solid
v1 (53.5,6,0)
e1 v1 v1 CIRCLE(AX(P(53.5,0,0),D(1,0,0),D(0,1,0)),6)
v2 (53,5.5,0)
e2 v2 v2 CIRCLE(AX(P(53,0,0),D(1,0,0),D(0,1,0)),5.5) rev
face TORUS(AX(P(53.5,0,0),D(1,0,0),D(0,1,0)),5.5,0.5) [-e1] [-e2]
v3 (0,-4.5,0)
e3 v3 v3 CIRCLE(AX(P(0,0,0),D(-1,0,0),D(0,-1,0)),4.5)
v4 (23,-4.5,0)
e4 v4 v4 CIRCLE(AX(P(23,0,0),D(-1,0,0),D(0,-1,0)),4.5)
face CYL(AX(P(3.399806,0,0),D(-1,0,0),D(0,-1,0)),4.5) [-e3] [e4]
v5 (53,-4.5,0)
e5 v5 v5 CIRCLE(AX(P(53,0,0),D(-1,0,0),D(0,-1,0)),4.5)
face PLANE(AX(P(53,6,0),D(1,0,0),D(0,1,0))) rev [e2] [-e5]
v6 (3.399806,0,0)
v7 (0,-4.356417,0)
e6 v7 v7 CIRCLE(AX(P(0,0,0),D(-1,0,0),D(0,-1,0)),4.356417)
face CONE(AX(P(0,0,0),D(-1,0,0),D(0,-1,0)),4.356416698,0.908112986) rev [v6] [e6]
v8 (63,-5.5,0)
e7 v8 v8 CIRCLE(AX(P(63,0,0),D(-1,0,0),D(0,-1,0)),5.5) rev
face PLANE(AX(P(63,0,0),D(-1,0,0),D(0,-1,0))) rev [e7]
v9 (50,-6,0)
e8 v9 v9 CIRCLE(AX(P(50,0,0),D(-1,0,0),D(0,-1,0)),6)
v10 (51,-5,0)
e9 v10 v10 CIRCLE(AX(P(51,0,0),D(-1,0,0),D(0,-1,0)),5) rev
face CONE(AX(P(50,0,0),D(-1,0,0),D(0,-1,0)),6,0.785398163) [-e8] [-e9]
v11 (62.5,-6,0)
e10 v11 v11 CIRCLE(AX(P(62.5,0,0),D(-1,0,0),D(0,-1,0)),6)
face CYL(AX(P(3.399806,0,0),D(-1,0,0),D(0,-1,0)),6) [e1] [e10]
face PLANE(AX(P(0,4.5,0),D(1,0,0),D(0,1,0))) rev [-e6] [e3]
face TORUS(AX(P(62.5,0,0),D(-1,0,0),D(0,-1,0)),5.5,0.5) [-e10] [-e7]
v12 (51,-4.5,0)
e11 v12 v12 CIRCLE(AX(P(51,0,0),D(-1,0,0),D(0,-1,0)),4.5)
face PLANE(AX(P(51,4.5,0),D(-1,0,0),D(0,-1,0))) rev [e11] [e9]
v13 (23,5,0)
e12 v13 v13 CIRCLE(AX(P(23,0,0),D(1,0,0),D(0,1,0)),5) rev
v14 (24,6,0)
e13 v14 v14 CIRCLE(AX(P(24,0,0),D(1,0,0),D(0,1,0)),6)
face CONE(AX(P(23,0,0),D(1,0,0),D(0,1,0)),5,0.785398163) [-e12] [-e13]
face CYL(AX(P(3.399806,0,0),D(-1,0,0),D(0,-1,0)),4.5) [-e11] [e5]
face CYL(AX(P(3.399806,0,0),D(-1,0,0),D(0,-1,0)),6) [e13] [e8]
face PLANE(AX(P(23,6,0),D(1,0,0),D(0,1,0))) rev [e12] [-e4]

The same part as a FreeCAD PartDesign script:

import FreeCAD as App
import Part
import Sketcher


def edges_at(feature, points):
    """Names of the edges that pass closest to the given points."""
    edges = feature.Shape.Edges
    near = lambda p: min(range(len(edges)), key=lambda i: edges[i].distToShape(Part.Vertex(*p))[0])
    return sorted({f"Edge{near(p) + 1}" for p in points})


def add_polygon(sketch, points):
    """Adds a closed chain of lines whose ends are joined by coincident constraints."""
    first, n = sketch.GeometryCount, len(points)
    for a, b in zip(points, points[1:] + points[:1]):
        sketch.addGeometry(Part.LineSegment(App.Vector(*a, 0), App.Vector(*b, 0)), False)
    for i in range(n):
        sketch.addConstraint(Sketcher.Constraint("Coincident", first + i, 2, first + (i + 1) % n, 1))

doc = App.newDocument("Part")
body = doc.addObject("PartDesign::Body", "Body")

# Sketch on XY plane
sketch1 = body.newObject("Sketcher::SketchObject", "Sketch")
sketch1.AttachmentSupport = (doc.getObject("XY_Plane"), [""])
sketch1.MapMode = "FlatFace"
add_polygon(sketch1, [(3.399806, 0), (63, 0), (63, 6), (53, 6), (53, 4.5), (51, 4.5), (51, 6), (23, 6), (23, 4.5), (0, 4.5), (0, 4.356417)])  # lines 0-10
sketch1.addConstraint([
    Sketcher.Constraint("Horizontal", 0),
    Sketcher.Constraint("Vertical", 1),
    Sketcher.Constraint("Horizontal", 2),
    Sketcher.Constraint("Vertical", 3),
    Sketcher.Constraint("Horizontal", 4),
    Sketcher.Constraint("Vertical", 5),
    Sketcher.Constraint("Horizontal", 6),
    Sketcher.Constraint("Vertical", 7),
    Sketcher.Constraint("Horizontal", 8),
    Sketcher.Constraint("Vertical", 9),
    Sketcher.Constraint("PointOnObject", 0, 2, -1),
    Sketcher.Constraint("PointOnObject", 8, 2, -2),
    Sketcher.Constraint("Horizontal", 2, 2, 5, 2),
    Sketcher.Constraint("Horizontal", 4, 2, 7, 2),
    Sketcher.Constraint("DistanceX", 2, 2, 2, 1, 10.0),
    Sketcher.Constraint("DistanceX", 4, 2, 4, 1, 2.0),
    Sketcher.Constraint("DistanceX", 6, 2, 6, 1, 28.0),
    Sketcher.Constraint("DistanceX", 8, 2, 8, 1, 23.0),
    Sketcher.Constraint("DistanceY", 1, 1, 1, 2, 6.0),
    Sketcher.Constraint("DistanceY", 3, 2, 3, 1, 1.5),
    Sketcher.Constraint("DistanceX", 0, 1, 0, 2, 59.600194),
    Sketcher.Constraint("DistanceY", 9, 2, 9, 1, 0.143583),
])
revolution = body.newObject("PartDesign::Revolution", "Revolution")
revolution.Profile = sketch1
revolution.ReferenceAxis = (sketch1, ["H_Axis"])
revolution.Angle = 360
doc.recompute()

fillet = body.newObject("PartDesign::Fillet", "Fillet")
fillet.Base = (revolution, edges_at(revolution, [(53, 6, 0), (63, 6, 0)]))
fillet.Radius = 0.5
doc.recompute()

chamfer = body.newObject("PartDesign::Chamfer", "Chamfer")
chamfer.Base = (fillet, edges_at(fillet, [(51, 6, 0), (23, 6, 0)]))
chamfer.Size = 1

doc.recompute()
